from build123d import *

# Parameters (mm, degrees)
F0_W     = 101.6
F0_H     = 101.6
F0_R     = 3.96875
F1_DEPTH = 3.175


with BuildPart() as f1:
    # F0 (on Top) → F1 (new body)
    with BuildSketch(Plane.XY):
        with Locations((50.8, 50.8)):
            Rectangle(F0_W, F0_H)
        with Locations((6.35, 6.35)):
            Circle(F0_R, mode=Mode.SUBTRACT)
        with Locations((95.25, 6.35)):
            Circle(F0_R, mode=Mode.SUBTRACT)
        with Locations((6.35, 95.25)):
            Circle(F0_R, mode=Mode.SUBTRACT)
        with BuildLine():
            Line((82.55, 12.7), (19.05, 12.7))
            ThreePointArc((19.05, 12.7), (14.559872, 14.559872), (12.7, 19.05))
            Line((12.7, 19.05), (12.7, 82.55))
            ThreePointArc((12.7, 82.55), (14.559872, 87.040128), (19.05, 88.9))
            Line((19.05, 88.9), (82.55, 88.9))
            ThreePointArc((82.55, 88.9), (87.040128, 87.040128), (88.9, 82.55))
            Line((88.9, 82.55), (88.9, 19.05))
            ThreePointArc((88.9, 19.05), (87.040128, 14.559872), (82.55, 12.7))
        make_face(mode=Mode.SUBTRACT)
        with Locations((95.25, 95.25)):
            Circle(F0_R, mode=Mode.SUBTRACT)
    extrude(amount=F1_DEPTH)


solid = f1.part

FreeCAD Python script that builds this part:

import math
import FreeCAD as App
import Part
import Sketcher
from FreeCAD import Vector
Q = App.Units.Quantity

doc = App.newDocument("Part")
body = doc.addObject("PartDesign::Body", "Body")

sketch1 = doc.addObject("Sketcher::SketchObject", "Sketch")
body.addObject(sketch1)
sketch1.AttachmentSupport = (doc.XY_Plane, [""])
sketch1.MapMode = "FlatFace"
sketch1.addGeometry([
    Part.LineSegment(Vector(0, 101.6, 0), Vector(0, 0, 0)),
    Part.LineSegment(Vector(0, 0, 0), Vector(101.6, 0, 0)),
    Part.LineSegment(Vector(101.6, 0, 0), Vector(101.6, 101.6, 0)),
    Part.LineSegment(Vector(101.6, 101.6, 0), Vector(0, 101.6, 0)),
    Part.Circle(Vector(6.35, 6.35, 0), Vector(0, 0, 1), 3.96875),
    Part.Circle(Vector(95.25, 6.35, 0), Vector(0, 0, 1), 3.96875),
    Part.Circle(Vector(6.35, 95.25, 0), Vector(0, 0, 1), 3.96875),
    Part.ArcOfCircle(Part.Circle(Vector(82.55, 19.05, 0), Vector(0, 0, 1), 6.35), math.radians(-89.999998), math.radians(-0.000002)),
    Part.LineSegment(Vector(82.55, 12.7, 0), Vector(19.05, 12.7, 0)),
    Part.ArcOfCircle(Part.Circle(Vector(19.05, 19.05, 0), Vector(0, 0, 1), 6.35), math.radians(-179.999998), math.radians(-90.000002)),
    Part.LineSegment(Vector(12.7, 19.05, 0), Vector(12.7, 82.55, 0)),
    Part.ArcOfCircle(Part.Circle(Vector(19.05, 82.55, 0), Vector(0, 0, 1), 6.35), math.radians(90.000002), math.radians(179.999998)),
    Part.LineSegment(Vector(19.05, 88.9, 0), Vector(82.55, 88.9, 0)),
    Part.ArcOfCircle(Part.Circle(Vector(82.55, 82.55, 0), Vector(0, 0, 1), 6.35), math.radians(0.000002), math.radians(89.999998)),
    Part.LineSegment(Vector(88.9, 82.55, 0), Vector(88.9, 19.05, 0)),
    Part.Circle(Vector(95.25, 95.25, 0), Vector(0, 0, 1), 3.96875),
], False)
sketch1.addConstraint([
    Sketcher.Constraint("Coincident", 0, 2, 1, 1),
    Sketcher.Constraint("Coincident", 1, 2, 2, 1),
    Sketcher.Constraint("Coincident", 2, 2, 3, 1),
    Sketcher.Constraint("Coincident", 3, 2, 0, 1),
    Sketcher.Constraint("Tangent", 7, 1, 8, 1),
    Sketcher.Constraint("Tangent", 8, 2, 9, 2),
    Sketcher.Constraint("Tangent", 9, 1, 10, 1),
    Sketcher.Constraint("Tangent", 10, 2, 11, 2),
    Sketcher.Constraint("Tangent", 11, 1, 12, 1),
    Sketcher.Constraint("Tangent", 12, 2, 13, 2),
    Sketcher.Constraint("Tangent", 13, 1, 14, 1),
    Sketcher.Constraint("Tangent", 14, 2, 7, 2),
    Sketcher.Constraint("Vertical", 0),
    Sketcher.Constraint("Horizontal", 1),
    Sketcher.Constraint("Vertical", 2),
    Sketcher.Constraint("Horizontal", 3),
    Sketcher.Constraint("Horizontal", 8),
    Sketcher.Constraint("Vertical", 10),
    Sketcher.Constraint("Horizontal", 12),
    Sketcher.Constraint("Vertical", 14),
    Sketcher.Constraint("Coincident", 0, 2, -1, 1),
    Sketcher.Constraint("Equal", 4, 5),
    Sketcher.Constraint("Equal", 5, 6),
    Sketcher.Constraint("Equal", 7, 9),
    Sketcher.Constraint("Equal", 9, 11),
    Sketcher.Constraint("Equal", 11, 13),
    Sketcher.Constraint("Equal", 6, 15),
    Sketcher.Constraint("Horizontal", 4, 3, 5, 3),
    Sketcher.Constraint("Horizontal", 6, 3, 15, 3),
    Sketcher.Constraint("Vertical", 4, 3, 6, 3),
    Sketcher.Constraint("Vertical", 5, 3, 15, 3),
    Sketcher.Constraint("Equal", 3, 0),
    Sketcher.Constraint("Equal", 12, 10),
    Sketcher.Constraint("DistanceX", 1, 1, 1, 2, Q("4 in")),
    Sketcher.Constraint("Radius", 7, Q("0.25 in")),
    Sketcher.Constraint("Diameter", 4, Q("0.3125 in")),
    Sketcher.Constraint("DistanceX", 8, 2, 8, 1, Q("2.5 in")),
    Sketcher.Constraint("DistanceX", 4, 3, 7, 3, Q("3 in")),
    Sketcher.Constraint("DistanceY", 7, 3, 6, 3, Q("3 in")),
    Sketcher.Constraint("DistanceX", 9, 3, 5, 3, Q("3 in")),
    Sketcher.Constraint("DistanceY", 4, 3, 11, 3, Q("3 in")),
    Sketcher.Constraint("DistanceY", -1, 1, 7, 1, Q("0.5 in")),
    Sketcher.Constraint("DistanceX", -1, 1, 9, 1, Q("0.5 in")),
])
pad1 = doc.addObject("PartDesign::Pad", "Pad")
body.addObject(pad1)
pad1.Profile = sketch1
pad1.Length = Q("0.125 in")

doc.recompute()
